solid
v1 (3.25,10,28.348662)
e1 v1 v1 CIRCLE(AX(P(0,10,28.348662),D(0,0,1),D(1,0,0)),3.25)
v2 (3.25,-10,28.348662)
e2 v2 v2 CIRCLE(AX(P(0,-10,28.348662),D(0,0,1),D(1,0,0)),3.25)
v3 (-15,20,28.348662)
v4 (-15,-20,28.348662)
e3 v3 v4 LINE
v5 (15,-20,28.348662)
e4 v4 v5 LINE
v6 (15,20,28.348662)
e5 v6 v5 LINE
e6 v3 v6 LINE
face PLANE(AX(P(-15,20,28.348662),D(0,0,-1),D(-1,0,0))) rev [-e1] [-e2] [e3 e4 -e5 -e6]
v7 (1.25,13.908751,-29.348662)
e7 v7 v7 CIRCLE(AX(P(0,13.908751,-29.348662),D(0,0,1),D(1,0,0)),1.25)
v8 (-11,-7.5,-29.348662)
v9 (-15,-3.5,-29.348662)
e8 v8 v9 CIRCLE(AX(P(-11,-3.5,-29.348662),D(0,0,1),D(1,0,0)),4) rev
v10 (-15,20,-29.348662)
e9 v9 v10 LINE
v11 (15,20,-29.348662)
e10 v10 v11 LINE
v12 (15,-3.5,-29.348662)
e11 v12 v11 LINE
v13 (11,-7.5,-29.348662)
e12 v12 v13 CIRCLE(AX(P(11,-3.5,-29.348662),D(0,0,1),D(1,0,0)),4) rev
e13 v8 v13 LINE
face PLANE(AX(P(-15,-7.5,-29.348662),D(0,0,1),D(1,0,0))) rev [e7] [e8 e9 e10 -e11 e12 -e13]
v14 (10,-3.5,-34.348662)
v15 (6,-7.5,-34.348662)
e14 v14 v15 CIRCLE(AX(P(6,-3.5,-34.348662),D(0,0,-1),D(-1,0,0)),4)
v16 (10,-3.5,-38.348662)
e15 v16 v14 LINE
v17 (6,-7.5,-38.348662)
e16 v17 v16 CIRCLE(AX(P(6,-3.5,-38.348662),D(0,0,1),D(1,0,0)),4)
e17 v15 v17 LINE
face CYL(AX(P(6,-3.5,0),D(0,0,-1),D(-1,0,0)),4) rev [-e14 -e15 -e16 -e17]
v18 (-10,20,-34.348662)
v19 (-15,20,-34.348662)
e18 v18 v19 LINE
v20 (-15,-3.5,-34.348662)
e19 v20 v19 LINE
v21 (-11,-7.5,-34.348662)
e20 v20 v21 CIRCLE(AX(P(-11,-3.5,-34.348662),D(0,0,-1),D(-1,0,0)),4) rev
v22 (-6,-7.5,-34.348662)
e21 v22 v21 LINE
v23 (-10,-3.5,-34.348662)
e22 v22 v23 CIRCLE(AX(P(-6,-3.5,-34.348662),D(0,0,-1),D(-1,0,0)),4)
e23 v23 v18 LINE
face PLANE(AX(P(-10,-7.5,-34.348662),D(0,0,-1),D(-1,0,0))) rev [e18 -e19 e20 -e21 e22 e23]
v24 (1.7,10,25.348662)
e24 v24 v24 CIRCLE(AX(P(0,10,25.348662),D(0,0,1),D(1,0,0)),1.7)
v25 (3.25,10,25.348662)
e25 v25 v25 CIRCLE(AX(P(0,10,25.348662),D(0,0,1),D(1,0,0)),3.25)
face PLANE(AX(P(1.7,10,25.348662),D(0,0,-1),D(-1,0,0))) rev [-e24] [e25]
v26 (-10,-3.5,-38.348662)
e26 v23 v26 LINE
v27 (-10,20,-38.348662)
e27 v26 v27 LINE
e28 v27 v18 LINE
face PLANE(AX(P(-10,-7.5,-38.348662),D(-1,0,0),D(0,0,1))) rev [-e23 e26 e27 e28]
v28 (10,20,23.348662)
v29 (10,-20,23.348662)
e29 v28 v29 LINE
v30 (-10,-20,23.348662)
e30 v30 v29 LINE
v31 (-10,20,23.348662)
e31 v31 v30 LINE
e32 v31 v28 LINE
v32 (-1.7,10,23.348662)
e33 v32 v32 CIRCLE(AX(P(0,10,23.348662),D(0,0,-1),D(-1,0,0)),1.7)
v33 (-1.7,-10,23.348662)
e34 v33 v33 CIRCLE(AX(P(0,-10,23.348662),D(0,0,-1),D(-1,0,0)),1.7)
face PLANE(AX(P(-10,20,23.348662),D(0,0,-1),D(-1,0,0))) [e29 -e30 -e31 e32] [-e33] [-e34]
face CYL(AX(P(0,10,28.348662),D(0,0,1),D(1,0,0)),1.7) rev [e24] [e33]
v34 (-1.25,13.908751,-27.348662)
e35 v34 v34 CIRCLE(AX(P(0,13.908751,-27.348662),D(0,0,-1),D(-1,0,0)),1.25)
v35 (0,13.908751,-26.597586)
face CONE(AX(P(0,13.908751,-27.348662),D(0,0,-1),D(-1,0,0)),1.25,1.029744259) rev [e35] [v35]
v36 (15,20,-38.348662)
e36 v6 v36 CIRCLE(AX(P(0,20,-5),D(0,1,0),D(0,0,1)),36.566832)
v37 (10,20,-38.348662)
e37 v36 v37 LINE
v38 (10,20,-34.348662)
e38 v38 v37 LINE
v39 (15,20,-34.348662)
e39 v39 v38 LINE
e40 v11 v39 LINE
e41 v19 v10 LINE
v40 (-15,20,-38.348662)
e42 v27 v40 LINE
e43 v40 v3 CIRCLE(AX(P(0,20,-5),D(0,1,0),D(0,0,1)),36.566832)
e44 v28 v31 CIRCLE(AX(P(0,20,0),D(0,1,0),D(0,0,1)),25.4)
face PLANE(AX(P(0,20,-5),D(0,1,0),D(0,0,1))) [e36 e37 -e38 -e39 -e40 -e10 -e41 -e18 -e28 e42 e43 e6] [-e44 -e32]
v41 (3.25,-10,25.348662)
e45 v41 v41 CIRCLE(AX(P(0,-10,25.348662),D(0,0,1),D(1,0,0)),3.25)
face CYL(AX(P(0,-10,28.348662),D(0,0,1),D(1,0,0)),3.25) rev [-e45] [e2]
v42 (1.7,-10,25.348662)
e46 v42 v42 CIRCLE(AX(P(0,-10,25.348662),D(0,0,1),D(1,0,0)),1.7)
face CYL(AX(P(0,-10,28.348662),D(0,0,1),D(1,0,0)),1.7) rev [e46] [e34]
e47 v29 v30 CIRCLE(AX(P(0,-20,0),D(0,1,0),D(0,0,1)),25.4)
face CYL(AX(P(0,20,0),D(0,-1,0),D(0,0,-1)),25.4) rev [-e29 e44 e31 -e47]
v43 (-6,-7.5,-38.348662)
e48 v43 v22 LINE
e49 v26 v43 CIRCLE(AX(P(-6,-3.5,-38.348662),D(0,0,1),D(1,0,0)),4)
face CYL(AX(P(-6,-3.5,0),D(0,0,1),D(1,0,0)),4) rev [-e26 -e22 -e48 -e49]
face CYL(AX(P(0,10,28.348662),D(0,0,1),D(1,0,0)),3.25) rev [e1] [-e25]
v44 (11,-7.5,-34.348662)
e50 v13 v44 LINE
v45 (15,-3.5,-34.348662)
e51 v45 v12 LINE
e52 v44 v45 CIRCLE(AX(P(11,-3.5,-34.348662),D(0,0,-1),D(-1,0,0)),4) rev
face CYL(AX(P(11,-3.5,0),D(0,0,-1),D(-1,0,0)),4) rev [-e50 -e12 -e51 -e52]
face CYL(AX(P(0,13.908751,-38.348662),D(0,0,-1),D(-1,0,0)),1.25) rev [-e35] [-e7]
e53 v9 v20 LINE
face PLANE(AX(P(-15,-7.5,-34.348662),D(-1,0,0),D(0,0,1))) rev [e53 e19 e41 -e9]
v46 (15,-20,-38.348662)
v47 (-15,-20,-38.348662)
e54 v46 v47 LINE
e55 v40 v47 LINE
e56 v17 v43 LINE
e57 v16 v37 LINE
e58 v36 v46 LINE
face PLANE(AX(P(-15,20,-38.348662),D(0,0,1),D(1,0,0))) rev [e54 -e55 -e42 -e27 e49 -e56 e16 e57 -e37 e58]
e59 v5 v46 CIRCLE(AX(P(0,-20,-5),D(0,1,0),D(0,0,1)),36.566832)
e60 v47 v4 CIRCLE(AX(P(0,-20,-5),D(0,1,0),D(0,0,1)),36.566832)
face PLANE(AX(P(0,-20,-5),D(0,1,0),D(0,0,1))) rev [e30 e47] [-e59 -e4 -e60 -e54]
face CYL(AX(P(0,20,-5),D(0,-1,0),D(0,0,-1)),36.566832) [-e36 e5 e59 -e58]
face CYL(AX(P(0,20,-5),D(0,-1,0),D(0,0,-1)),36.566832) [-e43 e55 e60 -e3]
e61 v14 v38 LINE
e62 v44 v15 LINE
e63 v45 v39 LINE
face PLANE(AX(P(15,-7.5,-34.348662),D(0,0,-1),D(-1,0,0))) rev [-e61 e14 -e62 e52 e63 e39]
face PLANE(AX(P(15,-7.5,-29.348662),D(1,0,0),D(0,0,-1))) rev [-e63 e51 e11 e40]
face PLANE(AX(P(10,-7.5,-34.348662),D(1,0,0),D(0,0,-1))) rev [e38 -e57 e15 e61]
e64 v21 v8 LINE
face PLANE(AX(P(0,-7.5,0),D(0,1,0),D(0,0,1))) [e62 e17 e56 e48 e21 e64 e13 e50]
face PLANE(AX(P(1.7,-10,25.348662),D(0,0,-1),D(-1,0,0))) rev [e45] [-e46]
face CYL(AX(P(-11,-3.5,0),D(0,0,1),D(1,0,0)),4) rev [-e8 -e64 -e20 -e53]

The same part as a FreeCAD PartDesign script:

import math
import FreeCAD as App
import Part
import Sketcher

V = App.Vector


def edges_at(feature, points):
    """Names of the edges that pass closest to the given points."""
    edges = feature.Shape.Edges
    near = lambda p: min(range(len(edges)), key=lambda i: edges[i].distToShape(Part.Vertex(*p))[0])
    return sorted({f"Edge{near(p) + 1}" for p in points})

doc = App.newDocument("Part")
body = doc.addObject("PartDesign::Body", "Body")

# Sketch on XZ plane
sketch1 = body.newObject("Sketcher::SketchObject", "Sketch")
sketch1.AttachmentSupport = (doc.getObject("XZ_Plane"), [""])
sketch1.MapMode = "FlatFace"
sketch1.addGeometry([
    Part.LineSegment(V(-15, 28, 0), V(15, 28, 0)),  # 0
    Part.ArcOfCircle(Part.Circle(V(0, -5, 0), V(0, 0, 1), 37), math.radians(-66), math.radians(66)),  # 1
    Part.LineSegment(V(15, -38, 0), V(-15, -38, 0)),  # 2
    Part.ArcOfCircle(Part.Circle(V(0, -5, 0), V(0, 0, 1), 37), math.radians(114), math.radians(246)),  # 3
    Part.LineSegment(V(10, 23, 0), V(-10, 23, 0)),  # 4
    Part.ArcOfCircle(Part.Circle(V(0, 0, 0), V(0, 0, 1), 25), math.radians(113), math.radians(427)),  # 5
], False)
sketch1.addConstraint([
    Sketcher.Constraint("Coincident", 0, 2, 1, 2),
    Sketcher.Constraint("Coincident", 1, 1, 2, 1),
    Sketcher.Constraint("Coincident", 2, 2, 3, 2),
    Sketcher.Constraint("Coincident", 3, 1, 0, 1),
    Sketcher.Constraint("Coincident", 4, 1, 5, 2),
    Sketcher.Constraint("Coincident", 5, 1, 4, 2),
    Sketcher.Constraint("Horizontal", 0),
    Sketcher.Constraint("Horizontal", 2),
    Sketcher.Constraint("Horizontal", 4),
    Sketcher.Constraint("Coincident", 5, 3, -1, 1),
    Sketcher.Constraint("Coincident", 3, 3, 1, 3),
    Sketcher.Constraint("Equal", 1, 3),
    Sketcher.Constraint("PointOnObject", 1, 3, -2),
    Sketcher.Constraint("Vertical", 0, 2, 1, 1),
    Sketcher.Constraint("Radius", 5, 25.4),
    Sketcher.Constraint("DistanceX", 0, 1, 0, 2, 30.0),
    Sketcher.Constraint("DistanceX", 4, 2, 4, 1, 20.0),
    Sketcher.Constraint("DistanceY", 1, 3, -1, 1, 5.0),
    Sketcher.Constraint("DistanceY", 4, 1, 0, 2, 5.0),
])
pad1 = body.newObject("PartDesign::Pad", "Pad")
pad1.Profile = sketch1
pad1.Length = 40
pad1.Midplane = True

# Sketch on XZ plane
sketch2 = body.newObject("Sketcher::SketchObject", "Sketch001")
sketch2.AttachmentSupport = (doc.getObject("XZ_Plane"), [""])
sketch2.MapMode = "FlatFace"
sketch2.AttachmentOffset = App.Placement(V(0, 0, -20), App.Rotation())
sketch2.addGeometry([
    Part.LineSegment(V(-10, -38.3, 0), V(-10, -34.3, 0)),  # 0
    Part.LineSegment(V(-10, -34.3, 0), V(-15, -34.3, 0)),  # 1
    Part.LineSegment(V(-15, -34.3, 0), V(-15, -29.3, 0)),  # 2
    Part.LineSegment(V(-15, -29.3, 0), V(15, -29.3, 0)),  # 3
    Part.LineSegment(V(15, -29.3, 0), V(15, -34.3, 0)),  # 4
    Part.LineSegment(V(15, -34.3, 0), V(10, -34.3, 0)),  # 5
    Part.LineSegment(V(10, -34.3, 0), V(10, -38.3, 0)),  # 6
    Part.LineSegment(V(10, -38.3, 0), V(-10, -38.3, 0)),  # 7
], False)
sketch2.addConstraint([
    Sketcher.Constraint("Coincident", 0, 2, 1, 1),
    Sketcher.Constraint("Coincident", 1, 2, 2, 1),
    Sketcher.Constraint("Coincident", 2, 2, 3, 1),
    Sketcher.Constraint("Coincident", 3, 2, 4, 1),
    Sketcher.Constraint("Coincident", 4, 2, 5, 1),
    Sketcher.Constraint("Coincident", 5, 2, 6, 1),
    Sketcher.Constraint("Coincident", 6, 2, 7, 1),
    Sketcher.Constraint("Coincident", 7, 2, 0, 1),
    Sketcher.Constraint("Vertical", 0),
    Sketcher.Constraint("Horizontal", 1),
    Sketcher.Constraint("Vertical", 2),
    Sketcher.Constraint("Horizontal", 3),
    Sketcher.Constraint("Vertical", 4),
    Sketcher.Constraint("Horizontal", 5),
    Sketcher.Constraint("Vertical", 6),
    Sketcher.Constraint("Horizontal", 7),
    Sketcher.Constraint("Symmetric", 1, 2, 4, 2, -2),
    Sketcher.Constraint("Equal", 1, 5),
    Sketcher.Constraint("Equal", 5, 2),
    Sketcher.Constraint("DistanceX", 1, 2, 1, 1, 5.0),
    Sketcher.Constraint("DistanceX", 3, 1, 3, 2, 30.0),
    Sketcher.Constraint("DistanceY", 0, 1, 0, 2, 4.0),
    Sketcher.Constraint("DistanceY", 0, 2, -1, 1, 34.348662),
])
pocket1 = body.newObject("PartDesign::Pocket", "Pocket")
pocket1.Profile = sketch2
pocket1.Length = 27.5
pocket1.Reversed = True
doc.recompute()

fillet = body.newObject("PartDesign::Fillet", "Fillet")
fillet.Base = (pocket1, edges_at(pocket1, [
    (10, -7.5, -36.349),
    (15, -7.5, -31.849),
    (-15, -7.5, -31.849),
    (-10, -7.5, -36.349),
]))
fillet.Radius = 4

# Sketch on XY plane
sketch3 = body.newObject("Sketcher::SketchObject", "Sketch002")
sketch3.AttachmentSupport = (doc.getObject("XY_Plane"), [""])
sketch3.MapMode = "FlatFace"
sketch3.AttachmentOffset = App.Placement(V(0, 0, 28.348662), App.Rotation())
sketch3.addGeometry([
    Part.Circle(V(0, 10, 0), V(0, 0, 1), 1.7),
    Part.Circle(V(0, -10, 0), V(0, 0, 1), 1.7),
], False)
sketch3.addConstraint([
    Sketcher.Constraint("Equal", 0, 1),
    Sketcher.Constraint("Symmetric", 0, 3, 1, 3, -1, 1),
    Sketcher.Constraint("PointOnObject", 0, 3, -2),
    Sketcher.Constraint("Diameter", 0, 3.4),
    Sketcher.Constraint("DistanceY", -1, 1, 0, 3, 10.0),
])
doc.recompute()
hole = body.newObject("PartDesign::Hole", "Hole")
hole.Profile = sketch3
hole.ThreadType = "None"
hole.Diameter = 3.4
hole.DepthType = "Dimension"
hole.Depth = 5
hole.DrillPoint = "Flat"
hole.HoleCutType = "Counterbore"
hole.HoleCutDiameter = 6.5
hole.HoleCutDepth = 3

# Sketch on XY plane
sketch4 = body.newObject("Sketcher::SketchObject", "Sketch003")
sketch4.AttachmentSupport = (doc.getObject("XY_Plane"), [""])
sketch4.MapMode = "FlatFace"
sketch4.AttachmentOffset = App.Placement(V(0, 0, -38.348662), App.Rotation())
sketch4.addGeometry(Part.Circle(V(0, 13.9, 0), V(0, 0, 1), 1.2), False)
sketch4.addConstraint([
    Sketcher.Constraint("PointOnObject", 0, 3, -2),
    Sketcher.Constraint("Diameter", 0, 2.5),
    Sketcher.Constraint("DistanceY", -1, 1, 0, 3, 13.908751),
])
doc.recompute()
hole2 = body.newObject("PartDesign::Hole", "Hole001")
hole2.Profile = sketch4
hole2.ThreadType = "None"
hole2.Diameter = 2.5
hole2.DepthType = "Dimension"
hole2.Depth = 11
hole2.DrillPoint = "Angled"
hole2.DrillPointAngle = 118
hole2.Reversed = True

doc.recompute()
